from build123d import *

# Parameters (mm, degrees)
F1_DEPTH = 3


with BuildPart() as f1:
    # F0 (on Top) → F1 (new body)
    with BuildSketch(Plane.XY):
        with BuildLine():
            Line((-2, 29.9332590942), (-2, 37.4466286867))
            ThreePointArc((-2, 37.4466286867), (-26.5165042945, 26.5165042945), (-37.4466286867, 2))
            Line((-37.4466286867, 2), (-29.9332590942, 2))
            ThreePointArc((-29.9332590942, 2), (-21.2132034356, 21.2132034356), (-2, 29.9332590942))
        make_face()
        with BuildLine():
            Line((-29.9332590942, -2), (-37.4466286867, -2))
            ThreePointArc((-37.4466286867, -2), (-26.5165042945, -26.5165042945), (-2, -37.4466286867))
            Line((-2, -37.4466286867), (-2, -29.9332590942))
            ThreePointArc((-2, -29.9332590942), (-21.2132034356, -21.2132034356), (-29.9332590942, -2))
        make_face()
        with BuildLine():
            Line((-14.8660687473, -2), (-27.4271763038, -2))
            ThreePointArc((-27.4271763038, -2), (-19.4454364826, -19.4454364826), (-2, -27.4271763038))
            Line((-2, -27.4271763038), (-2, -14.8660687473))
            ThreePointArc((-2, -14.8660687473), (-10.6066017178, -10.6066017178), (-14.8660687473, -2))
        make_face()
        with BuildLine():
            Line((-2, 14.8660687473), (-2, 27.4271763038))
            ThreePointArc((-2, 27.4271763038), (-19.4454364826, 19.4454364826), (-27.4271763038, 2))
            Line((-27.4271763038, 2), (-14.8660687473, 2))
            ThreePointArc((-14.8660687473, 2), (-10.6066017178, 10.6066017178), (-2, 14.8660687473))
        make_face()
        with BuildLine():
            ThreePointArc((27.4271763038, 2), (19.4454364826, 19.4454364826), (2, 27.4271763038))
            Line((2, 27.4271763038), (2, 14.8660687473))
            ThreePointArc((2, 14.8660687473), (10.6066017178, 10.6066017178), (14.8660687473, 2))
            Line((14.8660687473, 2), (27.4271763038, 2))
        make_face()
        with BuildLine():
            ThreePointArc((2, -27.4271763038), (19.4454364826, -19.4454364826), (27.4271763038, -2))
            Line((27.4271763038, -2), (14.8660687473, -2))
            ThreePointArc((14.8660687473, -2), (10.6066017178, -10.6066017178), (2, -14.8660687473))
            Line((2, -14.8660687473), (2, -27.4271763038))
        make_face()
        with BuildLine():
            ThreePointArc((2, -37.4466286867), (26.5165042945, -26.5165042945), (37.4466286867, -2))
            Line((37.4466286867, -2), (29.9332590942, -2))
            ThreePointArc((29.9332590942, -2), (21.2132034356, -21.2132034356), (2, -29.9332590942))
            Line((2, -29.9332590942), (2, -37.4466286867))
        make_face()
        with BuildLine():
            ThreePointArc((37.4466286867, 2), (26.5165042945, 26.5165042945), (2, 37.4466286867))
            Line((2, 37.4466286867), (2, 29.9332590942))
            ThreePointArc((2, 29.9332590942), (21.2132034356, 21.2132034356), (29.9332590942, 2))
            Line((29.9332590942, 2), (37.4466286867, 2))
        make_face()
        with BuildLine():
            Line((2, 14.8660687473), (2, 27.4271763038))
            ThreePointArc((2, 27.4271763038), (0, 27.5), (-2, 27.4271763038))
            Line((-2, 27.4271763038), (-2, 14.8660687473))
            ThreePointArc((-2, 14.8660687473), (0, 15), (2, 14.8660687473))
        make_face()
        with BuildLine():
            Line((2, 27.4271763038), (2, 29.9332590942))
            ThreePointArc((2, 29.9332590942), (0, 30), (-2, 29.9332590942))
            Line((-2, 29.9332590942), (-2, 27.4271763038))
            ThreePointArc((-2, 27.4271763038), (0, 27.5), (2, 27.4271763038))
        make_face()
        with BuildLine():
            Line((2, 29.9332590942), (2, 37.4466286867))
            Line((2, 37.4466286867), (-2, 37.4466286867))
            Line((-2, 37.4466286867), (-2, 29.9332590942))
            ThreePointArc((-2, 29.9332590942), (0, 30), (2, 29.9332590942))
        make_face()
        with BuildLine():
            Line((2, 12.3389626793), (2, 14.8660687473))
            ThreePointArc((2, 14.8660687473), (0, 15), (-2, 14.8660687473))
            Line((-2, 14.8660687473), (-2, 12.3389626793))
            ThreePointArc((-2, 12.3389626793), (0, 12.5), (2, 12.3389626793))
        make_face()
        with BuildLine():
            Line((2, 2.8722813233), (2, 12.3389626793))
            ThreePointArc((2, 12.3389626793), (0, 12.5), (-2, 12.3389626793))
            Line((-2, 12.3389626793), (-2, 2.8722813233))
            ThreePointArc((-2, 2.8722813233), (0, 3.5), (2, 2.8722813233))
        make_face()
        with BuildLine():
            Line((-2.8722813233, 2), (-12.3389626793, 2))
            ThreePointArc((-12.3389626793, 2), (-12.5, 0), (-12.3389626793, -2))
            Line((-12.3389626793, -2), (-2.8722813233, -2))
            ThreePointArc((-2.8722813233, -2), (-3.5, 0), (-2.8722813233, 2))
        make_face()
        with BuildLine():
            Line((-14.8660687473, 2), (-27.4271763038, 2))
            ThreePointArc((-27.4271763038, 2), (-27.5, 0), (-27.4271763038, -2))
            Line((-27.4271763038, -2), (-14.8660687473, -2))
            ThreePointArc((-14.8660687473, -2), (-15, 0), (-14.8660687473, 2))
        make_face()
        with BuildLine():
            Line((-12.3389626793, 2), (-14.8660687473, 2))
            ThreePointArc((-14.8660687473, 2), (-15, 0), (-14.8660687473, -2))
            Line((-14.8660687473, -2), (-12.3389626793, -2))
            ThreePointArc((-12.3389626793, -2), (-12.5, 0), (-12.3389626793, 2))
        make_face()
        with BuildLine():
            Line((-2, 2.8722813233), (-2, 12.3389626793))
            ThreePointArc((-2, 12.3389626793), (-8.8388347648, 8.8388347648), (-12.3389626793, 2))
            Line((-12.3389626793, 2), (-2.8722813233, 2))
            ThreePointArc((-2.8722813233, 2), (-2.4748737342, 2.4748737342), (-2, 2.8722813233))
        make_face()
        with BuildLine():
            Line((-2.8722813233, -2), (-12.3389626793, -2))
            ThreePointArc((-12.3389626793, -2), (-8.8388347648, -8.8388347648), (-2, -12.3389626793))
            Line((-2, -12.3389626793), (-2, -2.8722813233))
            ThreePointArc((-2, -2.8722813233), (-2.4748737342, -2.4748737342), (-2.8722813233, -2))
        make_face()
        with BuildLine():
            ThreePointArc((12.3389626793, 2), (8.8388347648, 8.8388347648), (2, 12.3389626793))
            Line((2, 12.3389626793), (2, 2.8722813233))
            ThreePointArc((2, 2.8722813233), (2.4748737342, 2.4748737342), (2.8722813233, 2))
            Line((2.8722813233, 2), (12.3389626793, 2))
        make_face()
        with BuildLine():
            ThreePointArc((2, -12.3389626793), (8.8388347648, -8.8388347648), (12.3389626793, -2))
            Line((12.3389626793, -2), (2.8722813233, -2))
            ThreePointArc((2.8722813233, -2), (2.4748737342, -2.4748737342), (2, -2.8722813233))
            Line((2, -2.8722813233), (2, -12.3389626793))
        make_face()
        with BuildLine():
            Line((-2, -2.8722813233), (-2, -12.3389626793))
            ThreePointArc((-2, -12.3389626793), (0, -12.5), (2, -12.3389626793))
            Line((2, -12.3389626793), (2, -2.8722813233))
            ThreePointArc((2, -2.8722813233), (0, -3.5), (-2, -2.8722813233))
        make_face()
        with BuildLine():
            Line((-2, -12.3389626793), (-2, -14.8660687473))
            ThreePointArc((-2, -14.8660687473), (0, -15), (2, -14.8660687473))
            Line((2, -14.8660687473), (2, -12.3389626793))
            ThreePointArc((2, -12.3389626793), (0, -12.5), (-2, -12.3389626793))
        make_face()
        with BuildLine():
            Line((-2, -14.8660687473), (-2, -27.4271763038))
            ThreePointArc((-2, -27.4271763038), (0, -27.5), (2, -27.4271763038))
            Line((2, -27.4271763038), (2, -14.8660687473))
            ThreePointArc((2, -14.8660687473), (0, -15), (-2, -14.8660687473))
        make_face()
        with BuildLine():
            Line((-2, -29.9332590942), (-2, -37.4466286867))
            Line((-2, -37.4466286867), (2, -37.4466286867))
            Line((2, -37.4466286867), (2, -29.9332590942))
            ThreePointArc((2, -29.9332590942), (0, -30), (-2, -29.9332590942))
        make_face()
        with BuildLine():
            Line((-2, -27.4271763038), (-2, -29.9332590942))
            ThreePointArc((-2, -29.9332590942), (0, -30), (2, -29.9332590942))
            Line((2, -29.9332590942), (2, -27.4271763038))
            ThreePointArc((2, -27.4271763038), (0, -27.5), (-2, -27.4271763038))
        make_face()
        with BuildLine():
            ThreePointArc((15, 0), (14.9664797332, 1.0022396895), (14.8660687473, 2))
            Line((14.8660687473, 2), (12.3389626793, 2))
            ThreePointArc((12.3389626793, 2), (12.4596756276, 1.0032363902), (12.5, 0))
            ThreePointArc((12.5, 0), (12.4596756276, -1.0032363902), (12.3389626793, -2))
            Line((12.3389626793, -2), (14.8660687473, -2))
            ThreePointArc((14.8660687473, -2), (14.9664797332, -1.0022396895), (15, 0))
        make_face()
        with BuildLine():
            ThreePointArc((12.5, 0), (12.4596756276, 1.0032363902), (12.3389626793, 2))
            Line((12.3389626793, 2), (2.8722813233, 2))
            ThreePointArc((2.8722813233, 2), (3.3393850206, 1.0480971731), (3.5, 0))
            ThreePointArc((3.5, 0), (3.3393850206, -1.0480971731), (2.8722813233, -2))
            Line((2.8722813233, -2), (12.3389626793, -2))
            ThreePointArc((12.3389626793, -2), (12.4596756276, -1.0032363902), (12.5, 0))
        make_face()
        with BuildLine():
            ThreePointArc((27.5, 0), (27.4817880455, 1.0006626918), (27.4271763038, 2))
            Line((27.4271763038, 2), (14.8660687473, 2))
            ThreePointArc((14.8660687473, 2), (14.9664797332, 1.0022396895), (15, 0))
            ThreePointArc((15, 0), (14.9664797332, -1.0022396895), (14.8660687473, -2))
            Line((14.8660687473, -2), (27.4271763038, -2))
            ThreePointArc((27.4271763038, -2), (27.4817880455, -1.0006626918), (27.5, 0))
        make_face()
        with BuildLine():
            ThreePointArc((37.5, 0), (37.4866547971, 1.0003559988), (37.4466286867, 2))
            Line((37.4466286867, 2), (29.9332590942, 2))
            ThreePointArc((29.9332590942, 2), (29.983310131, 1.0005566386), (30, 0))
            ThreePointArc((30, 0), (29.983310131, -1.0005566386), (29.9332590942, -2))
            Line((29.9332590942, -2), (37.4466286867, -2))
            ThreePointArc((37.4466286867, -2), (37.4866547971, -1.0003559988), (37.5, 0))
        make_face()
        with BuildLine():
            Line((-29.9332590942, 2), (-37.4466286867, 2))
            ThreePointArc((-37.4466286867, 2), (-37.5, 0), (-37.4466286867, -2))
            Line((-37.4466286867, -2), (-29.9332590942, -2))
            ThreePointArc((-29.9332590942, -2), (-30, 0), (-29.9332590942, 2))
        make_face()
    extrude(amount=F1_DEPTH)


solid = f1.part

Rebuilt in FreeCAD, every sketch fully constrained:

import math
import FreeCAD as App
import Part
import Sketcher
Q = App.Units.Quantity

doc = App.newDocument("Part")
body = doc.addObject("PartDesign::Body", "Body")

# Sketch on XY plane
sketch1 = doc.addObject("Sketcher::SketchObject", "Sketch")
body.addObject(sketch1)
sketch1.AttachmentSupport = (doc.XY_Plane, [""])
sketch1.MapMode = "FlatFace"
sketch1.addGeometry([
    Part.ArcOfCircle(Part.Circle(App.Vector(0, 0, 0), App.Vector(0, 0, 1), 37.5), math.radians(3.057225), math.radians(86.942775)),  # 0
    Part.LineSegment(App.Vector(2, 37.446629, 0), App.Vector(-2, 37.446629, 0)),  # 1
    Part.ArcOfCircle(Part.Circle(App.Vector(0, 0, 0), App.Vector(0, 0, 1), 37.5), math.radians(93.057225), math.radians(176.942775)),  # 2
    Part.ArcOfCircle(Part.Circle(App.Vector(0, 0, 0), App.Vector(0, 0, 1), 37.5), math.radians(176.942775), math.radians(183.057225)),  # 3
    Part.ArcOfCircle(Part.Circle(App.Vector(0, 0, 0), App.Vector(0, 0, 1), 37.5), math.radians(-176.942775), math.radians(-93.057225)),  # 4
    Part.LineSegment(App.Vector(-2, -37.446629, 0), App.Vector(2, -37.446629, 0)),  # 5
    Part.ArcOfCircle(Part.Circle(App.Vector(0, 0, 0), App.Vector(0, 0, 1), 37.5), math.radians(-86.942775), math.radians(-3.057225)),  # 6
    Part.ArcOfCircle(Part.Circle(App.Vector(0, 0, 0), App.Vector(0, 0, 1), 37.5), math.radians(-3.057225), math.radians(0)),  # 7
    Part.ArcOfCircle(Part.Circle(App.Vector(0, 0, 0), App.Vector(0, 0, 1), 37.5), math.radians(0), math.radians(3.057225)),  # 8
    Part.ArcOfCircle(Part.Circle(App.Vector(0, 0, 0), App.Vector(0, 0, 1), 27.5), math.radians(-85.829352), math.radians(-4.170648)),  # 9
    Part.ArcOfCircle(Part.Circle(App.Vector(0, 0, 0), App.Vector(0, 0, 1), 27.5), math.radians(-4.170648), math.radians(0)),  # 10
    Part.ArcOfCircle(Part.Circle(App.Vector(0, 0, 0), App.Vector(0, 0, 1), 27.5), math.radians(0), math.radians(4.170648)),  # 11
    Part.ArcOfCircle(Part.Circle(App.Vector(0, 0, 0), App.Vector(0, 0, 1), 27.5), math.radians(4.170648), math.radians(85.829352)),  # 12
    Part.LineSegment(App.Vector(2, 27.427176, 0), App.Vector(2, 29.933259, 0)),  # 13
    Part.ArcOfCircle(Part.Circle(App.Vector(0, 0, 0), App.Vector(0, 0, 1), 30), math.radians(3.822554), math.radians(86.177446)),  # 14
    Part.ArcOfCircle(Part.Circle(App.Vector(0, 0, 0), App.Vector(0, 0, 1), 30), math.radians(0), math.radians(3.822554)),  # 15
    Part.ArcOfCircle(Part.Circle(App.Vector(0, 0, 0), App.Vector(0, 0, 1), 30), math.radians(-3.822554), math.radians(0)),  # 16
    Part.ArcOfCircle(Part.Circle(App.Vector(0, 0, 0), App.Vector(0, 0, 1), 30), math.radians(-86.177446), math.radians(-3.822554)),  # 17
    Part.LineSegment(App.Vector(2, -29.933259, 0), App.Vector(2, -27.427176, 0)),  # 18
    Part.ArcOfCircle(Part.Circle(App.Vector(0, 0, 0), App.Vector(0, 0, 1), 30), math.radians(93.822554), math.radians(176.177446)),  # 19
    Part.LineSegment(App.Vector(-2, 29.933259, 0), App.Vector(-2, 27.427176, 0)),  # 20
    Part.ArcOfCircle(Part.Circle(App.Vector(0, 0, 0), App.Vector(0, 0, 1), 27.5), math.radians(94.170648), math.radians(175.829352)),  # 21
    Part.ArcOfCircle(Part.Circle(App.Vector(0, 0, 0), App.Vector(0, 0, 1), 27.5), math.radians(175.829352), math.radians(184.170648)),  # 22
    Part.ArcOfCircle(Part.Circle(App.Vector(0, 0, 0), App.Vector(0, 0, 1), 27.5), math.radians(-175.829352), math.radians(-94.170648)),  # 23
    Part.LineSegment(App.Vector(-2, -27.427176, 0), App.Vector(-2, -29.933259, 0)),  # 24
    Part.ArcOfCircle(Part.Circle(App.Vector(0, 0, 0), App.Vector(0, 0, 1), 30), math.radians(-176.177446), math.radians(-93.822554)),  # 25
    Part.ArcOfCircle(Part.Circle(App.Vector(0, 0, 0), App.Vector(0, 0, 1), 30), math.radians(176.177446), math.radians(183.822554)),  # 26
    Part.LineSegment(App.Vector(-2, -12.338963, 0), App.Vector(-2, -14.866069, 0)),  # 27
    Part.ArcOfCircle(Part.Circle(App.Vector(0, 0, 0), App.Vector(0, 0, 1), 15), math.radians(-172.337744), math.radians(-97.662256)),  # 28
    Part.LineSegment(App.Vector(-14.866069, -2, 0), App.Vector(-12.338963, -2, 0)),  # 29
    Part.ArcOfCircle(Part.Circle(App.Vector(0, 0, 0), App.Vector(0, 0, 1), 12.5), math.radians(-170.793104), math.radians(-99.206896)),  # 30
    Part.ArcOfCircle(Part.Circle(App.Vector(0, 0, 0), App.Vector(0, 0, 1), 3.5), math.radians(-55.150095), math.radians(-34.849905)),  # 31
    Part.ArcOfCircle(Part.Circle(App.Vector(0, 0, 0), App.Vector(0, 0, 1), 3.5), math.radians(-124.849905), math.radians(-55.150095)),  # 32
    Part.ArcOfCircle(Part.Circle(App.Vector(0, 0, 0), App.Vector(0, 0, 1), 3.5), math.radians(-145.150095), math.radians(-124.849905)),  # 33
    Part.ArcOfCircle(Part.Circle(App.Vector(0, 0, 0), App.Vector(0, 0, 1), 3.5), math.radians(145.150095), math.radians(214.849905)),  # 34
    Part.ArcOfCircle(Part.Circle(App.Vector(0, 0, 0), App.Vector(0, 0, 1), 3.5), math.radians(124.849905), math.radians(145.150095)),  # 35
    Part.ArcOfCircle(Part.Circle(App.Vector(0, 0, 0), App.Vector(0, 0, 1), 3.5), math.radians(55.150095), math.radians(124.849905)),  # 36
    Part.ArcOfCircle(Part.Circle(App.Vector(0, 0, 0), App.Vector(0, 0, 1), 3.5), math.radians(34.849905), math.radians(55.150095)),  # 37
    Part.ArcOfCircle(Part.Circle(App.Vector(0, 0, 0), App.Vector(0, 0, 1), 3.5), math.radians(0), math.radians(34.849905)),  # 38
    Part.ArcOfCircle(Part.Circle(App.Vector(0, 0, 0), App.Vector(0, 0, 1), 3.5), math.radians(-34.849905), math.radians(0)),  # 39
    Part.LineSegment(App.Vector(12.338963, -2, 0), App.Vector(14.866069, -2, 0)),  # 40
    Part.ArcOfCircle(Part.Circle(App.Vector(0, 0, 0), App.Vector(0, 0, 1), 15), math.radians(-82.337744), math.radians(-7.662256)),  # 41
    Part.LineSegment(App.Vector(2, -14.866069, 0), App.Vector(2, -12.338963, 0)),  # 42
    Part.ArcOfCircle(Part.Circle(App.Vector(0, 0, 0), App.Vector(0, 0, 1), 12.5), math.radians(-80.793104), math.radians(-9.206896)),  # 43
    Part.LineSegment(App.Vector(-12.338963, 2, 0), App.Vector(-14.866069, 2, 0)),  # 44
    Part.ArcOfCircle(Part.Circle(App.Vector(0, 0, 0), App.Vector(0, 0, 1), 15), math.radians(97.662256), math.radians(172.337744)),  # 45
    Part.LineSegment(App.Vector(-2, 14.866069, 0), App.Vector(-2, 12.338963, 0)),  # 46
    Part.ArcOfCircle(Part.Circle(App.Vector(0, 0, 0), App.Vector(0, 0, 1), 12.5), math.radians(99.206896), math.radians(170.793104)),  # 47
    Part.ArcOfCircle(Part.Circle(App.Vector(0, 0, 0), App.Vector(0, 0, 1), 15), math.radians(7.662256), math.radians(82.337744)),  # 48
    Part.LineSegment(App.Vector(14.866069, 2, 0), App.Vector(12.338963, 2, 0)),  # 49
    Part.ArcOfCircle(Part.Circle(App.Vector(0, 0, 0), App.Vector(0, 0, 1), 12.5), math.radians(9.206896), math.radians(80.793104)),  # 50
    Part.LineSegment(App.Vector(2, 12.338963, 0), App.Vector(2, 14.866069, 0)),  # 51
], False)
sketch1.addConstraint([
    Sketcher.Constraint("Coincident", 0, 2, 1, 1),
    Sketcher.Constraint("Coincident", 1, 2, 2, 1),
    Sketcher.Constraint("Tangent", 2, 2, 3, 1),
    Sketcher.Constraint("Tangent", 3, 2, 4, 1),
    Sketcher.Constraint("Coincident", 4, 2, 5, 1),
    Sketcher.Constraint("Coincident", 5, 2, 6, 1),
    Sketcher.Constraint("Tangent", 6, 2, 7, 1),
    Sketcher.Constraint("Tangent", 7, 2, 8, 1),
    Sketcher.Constraint("Tangent", 8, 2, 0, 1),
    Sketcher.Constraint("Tangent", 9, 2, 10, 1),
    Sketcher.Constraint("Tangent", 10, 2, 11, 1),
    Sketcher.Constraint("Tangent", 11, 2, 12, 1),
    Sketcher.Constraint("Coincident", 12, 2, 13, 1),
    Sketcher.Constraint("Coincident", 13, 2, 14, 2),
    Sketcher.Constraint("Tangent", 14, 1, 15, 2),
    Sketcher.Constraint("Tangent", 15, 1, 16, 2),
    Sketcher.Constraint("Tangent", 16, 1, 17, 2),
    Sketcher.Constraint("Coincident", 17, 1, 18, 1),
    Sketcher.Constraint("Coincident", 18, 2, 9, 1),
    Sketcher.Constraint("Coincident", 19, 1, 20, 1),
    Sketcher.Constraint("Coincident", 20, 2, 21, 1),
    Sketcher.Constraint("Tangent", 21, 2, 22, 1),
    Sketcher.Constraint("Tangent", 22, 2, 23, 1),
    Sketcher.Constraint("Coincident", 23, 2, 24, 1),
    Sketcher.Constraint("Coincident", 24, 2, 25, 2),
    Sketcher.Constraint("Tangent", 25, 1, 26, 2),
    Sketcher.Constraint("Tangent", 26, 1, 19, 2),
    Sketcher.Constraint("Coincident", 27, 2, 28, 2),
    Sketcher.Constraint("Coincident", 28, 1, 29, 1),
    Sketcher.Constraint("Coincident", 29, 2, 30, 1),
    Sketcher.Constraint("Coincident", 30, 2, 27, 1),
    Sketcher.Constraint("Tangent", 31, 1, 32, 2),
    Sketcher.Constraint("Tangent", 32, 1, 33, 2),
    Sketcher.Constraint("Tangent", 33, 1, 34, 2),
    Sketcher.Constraint("Tangent", 34, 1, 35, 2),
    Sketcher.Constraint("Tangent", 35, 1, 36, 2),
    Sketcher.Constraint("Tangent", 36, 1, 37, 2),
    Sketcher.Constraint("Tangent", 37, 1, 38, 2),
    Sketcher.Constraint("Tangent", 38, 1, 39, 2),
    Sketcher.Constraint("Tangent", 39, 1, 31, 2),
    Sketcher.Constraint("Coincident", 40, 2, 41, 2),
    Sketcher.Constraint("Coincident", 41, 1, 42, 1),
    Sketcher.Constraint("Coincident", 42, 2, 43, 1),
    Sketcher.Constraint("Coincident", 43, 2, 40, 1),
    Sketcher.Constraint("Coincident", 44, 2, 45, 2),
    Sketcher.Constraint("Coincident", 45, 1, 46, 1),
    Sketcher.Constraint("Coincident", 46, 2, 47, 1),
    Sketcher.Constraint("Coincident", 47, 2, 44, 1),
    Sketcher.Constraint("Coincident", 48, 1, 49, 1),
    Sketcher.Constraint("Coincident", 49, 2, 50, 1),
    Sketcher.Constraint("Coincident", 50, 2, 51, 1),
    Sketcher.Constraint("Coincident", 51, 2, 48, 2),
    Sketcher.Constraint("Horizontal", 1),
    Sketcher.Constraint("Horizontal", 5),
    Sketcher.Constraint("Vertical", 13),
    Sketcher.Constraint("Vertical", 18),
    Sketcher.Constraint("Vertical", 20),
    Sketcher.Constraint("Vertical", 24),
    Sketcher.Constraint("Vertical", 27),
    Sketcher.Constraint("Horizontal", 29),
    Sketcher.Constraint("Horizontal", 40),
    Sketcher.Constraint("Vertical", 42),
    Sketcher.Constraint("Horizontal", 44),
    Sketcher.Constraint("Vertical", 46),
    Sketcher.Constraint("Horizontal", 49),
    Sketcher.Constraint("Vertical", 51),
    Sketcher.Constraint("Coincident", 0, 3, -1, 1),
    Sketcher.Constraint("Coincident", 2, 3, -1, 1),
    Sketcher.Constraint("Coincident", 4, 3, -1, 1),
    Sketcher.Constraint("Coincident", 6, 3, -1, 1),
    Sketcher.Constraint("Coincident", 9, 3, -1, 1),
    Sketcher.Constraint("Coincident", 11, 3, -1, 1),
    Sketcher.Constraint("Coincident", 14, 3, -1, 1),
    Sketcher.Constraint("Coincident", 16, 3, -1, 1),
    Sketcher.Constraint("Coincident", 19, 3, -1, 1),
    Sketcher.Constraint("Coincident", 21, 3, -1, 1),
    Sketcher.Constraint("Coincident", 23, 3, -1, 1),
    Sketcher.Constraint("Coincident", 25, 3, -1, 1),
    Sketcher.Constraint("Coincident", 28, 3, -1, 1),
    Sketcher.Constraint("Coincident", 30, 3, -1, 1),
    Sketcher.Constraint("Coincident", 31, 3, -1, 1),
    Sketcher.Constraint("Coincident", 33, 3, -1, 1),
    Sketcher.Constraint("Coincident", 35, 3, -1, 1),
    Sketcher.Constraint("Coincident", 37, 3, -1, 1),
    Sketcher.Constraint("Coincident", 41, 3, -1, 1),
    Sketcher.Constraint("Coincident", 43, 3, -1, 1),
    Sketcher.Constraint("Coincident", 45, 3, -1, 1),
    Sketcher.Constraint("Coincident", 47, 3, -1, 1),
    Sketcher.Constraint("Coincident", 48, 3, -1, 1),
    Sketcher.Constraint("Coincident", 50, 3, -1, 1),
    Sketcher.Constraint("Equal", 0, 2),
    Sketcher.Constraint("Equal", 6, 7),
    Sketcher.Constraint("Equal", 11, 12),
    Sketcher.Constraint("Equal", 16, 17),
    Sketcher.Constraint("Equal", 17, 19),
    Sketcher.Constraint("Equal", 12, 21),
    Sketcher.Constraint("Equal", 28, 41),
    Sketcher.Constraint("Equal", 30, 43),
    Sketcher.Constraint("Equal", 41, 45),
    Sketcher.Constraint("Equal", 43, 47),
    Sketcher.Constraint("Equal", 45, 48),
    Sketcher.Constraint("Equal", 47, 50),
    Sketcher.Constraint("PointOnObject", 7, 2, -1),
    Sketcher.Constraint("PointOnObject", 10, 2, -1),
    Sketcher.Constraint("PointOnObject", 15, 1, -1),
    Sketcher.Constraint("PointOnObject", 38, 1, -1),
    Sketcher.Constraint("Horizontal", 3, 2, 6, 2),
    Sketcher.Constraint("Horizontal", 2, 2, 8, 2),
    Sketcher.Constraint("Horizontal", 6, 2, 9, 2),
    Sketcher.Constraint("Horizontal", 8, 2, 11, 2),
    Sketcher.Constraint("Horizontal", 11, 2, 14, 1),
    Sketcher.Constraint("Horizontal", 9, 2, 16, 1),
    Sketcher.Constraint("Horizontal", 13, 2, 19, 1),
    Sketcher.Constraint("Horizontal", 14, 1, 21, 2),
    Sketcher.Constraint("Horizontal", 16, 1, 22, 2),
    Sketcher.Constraint("Horizontal", 18, 2, 23, 2),
    Sketcher.Constraint("Horizontal", 22, 2, 25, 1),
    Sketcher.Constraint("Horizontal", 21, 2, 26, 1),
    Sketcher.Constraint("Horizontal", 25, 1, 28, 1),
    Sketcher.Constraint("Horizontal", 31, 1, 32, 1),
    Sketcher.Constraint("Horizontal", 29, 2, 33, 1),
    Sketcher.Constraint("Horizontal", 26, 1, 34, 1),
    Sketcher.Constraint("Horizontal", 35, 1, 36, 1),
    Sketcher.Constraint("Horizontal", 34, 1, 37, 1),
    Sketcher.Constraint("Horizontal", 33, 1, 39, 1),
    Sketcher.Constraint("Horizontal", 39, 1, 40, 2),
    Sketcher.Constraint("Horizontal", 27, 2, 41, 1),
    Sketcher.Constraint("Horizontal", 37, 1, 44, 2),
    Sketcher.Constraint("Horizontal", 47, 2, 48, 1),
    Sketcher.Constraint("Horizontal", 46, 2, 50, 2),
    Sketcher.Constraint("Vertical", 2, 2, 3, 2),
    Sketcher.Constraint("Vertical", 1, 2, 4, 2),
    Sketcher.Constraint("Vertical", 5, 2, 12, 2),
    Sketcher.Constraint("Vertical", 13, 2, 17, 1),
    Sketcher.Constraint("Vertical", 24, 2, 27, 2),
    Sketcher.Constraint("Vertical", 18, 2, 31, 1),
    Sketcher.Constraint("Vertical", 32, 1, 35, 1),
    Sketcher.Constraint("Vertical", 35, 1, 45, 1),
    Sketcher.Constraint("Equal", 49, 27),
    Sketcher.Constraint("Radius", 14, Q("30 mm")),
    Sketcher.Constraint("Radius", 28, Q("15 mm")),
    Sketcher.Constraint("Radius", 0, Q("37.5 mm")),
    Sketcher.Constraint("Radius", 9, Q("27.5 mm")),
    Sketcher.Constraint("Radius", 30, Q("12.5 mm")),
    Sketcher.Constraint("Radius", 31, Q("3.5 mm")),
    Sketcher.Constraint("DistanceX", 1, 2, 1, 1, Q("4 mm")),
])
pad1 = doc.addObject("PartDesign::Pad", "Pad")
body.addObject(pad1)
pad1.Profile = sketch1
pad1.Length = 3

doc.recompute()
